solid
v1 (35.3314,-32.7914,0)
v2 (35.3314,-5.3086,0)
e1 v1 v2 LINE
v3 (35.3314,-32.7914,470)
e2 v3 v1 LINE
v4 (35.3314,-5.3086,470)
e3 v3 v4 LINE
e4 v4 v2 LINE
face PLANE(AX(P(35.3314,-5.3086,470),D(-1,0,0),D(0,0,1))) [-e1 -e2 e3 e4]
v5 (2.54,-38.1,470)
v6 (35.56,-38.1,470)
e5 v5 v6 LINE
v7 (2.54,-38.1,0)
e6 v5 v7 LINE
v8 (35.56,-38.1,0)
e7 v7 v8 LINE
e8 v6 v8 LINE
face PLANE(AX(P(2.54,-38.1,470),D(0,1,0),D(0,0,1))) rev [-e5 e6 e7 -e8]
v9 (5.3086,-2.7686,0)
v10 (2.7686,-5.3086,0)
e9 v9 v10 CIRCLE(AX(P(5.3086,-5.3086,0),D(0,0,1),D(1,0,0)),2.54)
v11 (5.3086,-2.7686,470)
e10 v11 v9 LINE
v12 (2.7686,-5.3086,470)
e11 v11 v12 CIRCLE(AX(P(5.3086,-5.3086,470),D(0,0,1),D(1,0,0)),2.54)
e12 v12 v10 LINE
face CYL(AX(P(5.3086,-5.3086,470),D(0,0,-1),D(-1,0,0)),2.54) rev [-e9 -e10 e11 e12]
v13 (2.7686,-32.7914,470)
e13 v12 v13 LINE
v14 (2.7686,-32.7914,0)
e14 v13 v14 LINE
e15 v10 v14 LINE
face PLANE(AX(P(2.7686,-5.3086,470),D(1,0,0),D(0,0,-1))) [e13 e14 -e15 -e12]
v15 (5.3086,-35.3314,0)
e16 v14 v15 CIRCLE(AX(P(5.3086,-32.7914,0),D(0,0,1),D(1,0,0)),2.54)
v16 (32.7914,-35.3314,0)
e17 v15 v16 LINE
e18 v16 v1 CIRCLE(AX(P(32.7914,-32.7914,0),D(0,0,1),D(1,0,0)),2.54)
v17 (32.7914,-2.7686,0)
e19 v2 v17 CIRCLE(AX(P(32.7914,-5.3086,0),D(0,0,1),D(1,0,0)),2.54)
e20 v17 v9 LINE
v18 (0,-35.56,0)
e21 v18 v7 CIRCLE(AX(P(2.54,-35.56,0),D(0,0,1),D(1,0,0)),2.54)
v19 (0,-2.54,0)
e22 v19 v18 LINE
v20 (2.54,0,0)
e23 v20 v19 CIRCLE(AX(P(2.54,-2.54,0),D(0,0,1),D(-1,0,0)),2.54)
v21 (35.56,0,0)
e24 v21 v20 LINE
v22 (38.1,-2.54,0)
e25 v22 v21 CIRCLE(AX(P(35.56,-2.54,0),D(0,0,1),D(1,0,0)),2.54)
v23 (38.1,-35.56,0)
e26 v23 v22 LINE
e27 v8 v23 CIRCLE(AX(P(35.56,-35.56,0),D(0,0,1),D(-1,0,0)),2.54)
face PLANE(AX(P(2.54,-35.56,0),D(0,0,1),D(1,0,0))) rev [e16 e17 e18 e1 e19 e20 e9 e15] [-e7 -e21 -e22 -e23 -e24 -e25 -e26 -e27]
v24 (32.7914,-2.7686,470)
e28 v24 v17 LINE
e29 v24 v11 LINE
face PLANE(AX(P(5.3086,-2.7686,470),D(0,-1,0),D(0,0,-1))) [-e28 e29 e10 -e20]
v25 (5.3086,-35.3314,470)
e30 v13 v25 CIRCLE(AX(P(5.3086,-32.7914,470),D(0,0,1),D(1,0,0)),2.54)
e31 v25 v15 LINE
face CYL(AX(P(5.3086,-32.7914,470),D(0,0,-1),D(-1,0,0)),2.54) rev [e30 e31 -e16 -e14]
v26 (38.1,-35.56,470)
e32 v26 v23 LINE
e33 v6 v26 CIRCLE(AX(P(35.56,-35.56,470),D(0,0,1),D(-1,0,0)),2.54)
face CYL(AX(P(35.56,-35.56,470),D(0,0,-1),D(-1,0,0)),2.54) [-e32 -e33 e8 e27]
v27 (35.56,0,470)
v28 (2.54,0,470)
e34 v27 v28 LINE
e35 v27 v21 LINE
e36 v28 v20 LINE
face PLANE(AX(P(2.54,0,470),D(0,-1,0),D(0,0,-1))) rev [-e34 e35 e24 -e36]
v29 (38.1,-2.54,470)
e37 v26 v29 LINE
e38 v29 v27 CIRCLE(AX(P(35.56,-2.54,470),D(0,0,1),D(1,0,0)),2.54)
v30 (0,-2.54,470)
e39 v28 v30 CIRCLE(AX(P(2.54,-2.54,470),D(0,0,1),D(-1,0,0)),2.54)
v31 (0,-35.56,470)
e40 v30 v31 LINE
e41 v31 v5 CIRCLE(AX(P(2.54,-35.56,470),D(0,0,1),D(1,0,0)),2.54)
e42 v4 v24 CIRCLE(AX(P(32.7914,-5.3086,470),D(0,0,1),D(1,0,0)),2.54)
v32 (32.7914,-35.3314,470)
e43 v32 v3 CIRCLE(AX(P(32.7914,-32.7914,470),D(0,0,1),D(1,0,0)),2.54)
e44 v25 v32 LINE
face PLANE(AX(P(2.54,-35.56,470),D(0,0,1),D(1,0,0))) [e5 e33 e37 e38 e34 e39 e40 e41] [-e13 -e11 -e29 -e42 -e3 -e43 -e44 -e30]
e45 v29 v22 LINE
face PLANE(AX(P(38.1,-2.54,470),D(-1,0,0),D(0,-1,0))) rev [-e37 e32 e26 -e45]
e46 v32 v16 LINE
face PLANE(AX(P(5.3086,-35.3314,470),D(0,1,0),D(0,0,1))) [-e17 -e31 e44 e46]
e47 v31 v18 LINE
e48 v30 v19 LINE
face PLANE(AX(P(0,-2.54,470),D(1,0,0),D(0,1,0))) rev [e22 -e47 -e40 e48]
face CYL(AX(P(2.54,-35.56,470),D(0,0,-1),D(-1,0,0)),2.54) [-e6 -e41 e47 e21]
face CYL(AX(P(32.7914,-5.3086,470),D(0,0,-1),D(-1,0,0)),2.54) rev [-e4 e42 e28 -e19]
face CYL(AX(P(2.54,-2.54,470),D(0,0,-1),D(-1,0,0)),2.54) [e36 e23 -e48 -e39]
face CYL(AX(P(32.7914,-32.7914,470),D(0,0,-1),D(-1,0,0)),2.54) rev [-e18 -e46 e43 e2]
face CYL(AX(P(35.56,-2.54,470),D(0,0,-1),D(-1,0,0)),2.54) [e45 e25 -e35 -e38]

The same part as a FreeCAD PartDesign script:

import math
import FreeCAD as App
import Part
import Sketcher

V = App.Vector
Q = App.Units.Quantity

doc = App.newDocument("Part")
body = doc.addObject("PartDesign::Body", "Body")

# Sketch on XY plane
sketch1 = body.newObject("Sketcher::SketchObject", "Sketch")
sketch1.AttachmentSupport = (doc.getObject("XY_Plane"), [""])
sketch1.MapMode = "FlatFace"
sketch1.addGeometry([
    Part.LineSegment(V(35.6, 0, 0), V(2.5, 0, 0)),  # 0
    Part.ArcOfCircle(Part.Circle(V(2.5, -2.5, 0), V(0, 0, 1), 2.5), math.radians(90), math.radians(180)),  # 1
    Part.LineSegment(V(0, -2.5, 0), V(0, -35.6, 0)),  # 2
    Part.ArcOfCircle(Part.Circle(V(2.5, -35.6, 0), V(0, 0, 1), 2.5), math.radians(-180), math.radians(-90)),  # 3
    Part.LineSegment(V(2.5, -38.1, 0), V(35.6, -38.1, 0)),  # 4
    Part.ArcOfCircle(Part.Circle(V(35.6, -35.6, 0), V(0, 0, 1), 2.5), math.radians(-90), math.radians(0)),  # 5
    Part.LineSegment(V(38.1, -35.6, 0), V(38.1, -2.5, 0)),  # 6
    Part.ArcOfCircle(Part.Circle(V(35.6, -2.5, 0), V(0, 0, 1), 2.5), math.radians(0), math.radians(90)),  # 7
    Part.LineSegment(V(5.3, -2.8, 0), V(32.8, -2.8, 0)),  # 8
    Part.ArcOfCircle(Part.Circle(V(32.8, -5.3, 0), V(0, 0, 1), 2.5), math.radians(0), math.radians(90)),  # 9
    Part.LineSegment(V(35.3, -5.3, 0), V(35.3, -32.8, 0)),  # 10
    Part.ArcOfCircle(Part.Circle(V(32.8, -32.8, 0), V(0, 0, 1), 2.5), math.radians(-90), math.radians(0)),  # 11
    Part.LineSegment(V(32.8, -35.3, 0), V(5.3, -35.3, 0)),  # 12
    Part.ArcOfCircle(Part.Circle(V(5.3, -32.8, 0), V(0, 0, 1), 2.5), math.radians(-180), math.radians(-90)),  # 13
    Part.LineSegment(V(2.8, -32.8, 0), V(2.8, -5.3, 0)),  # 14
    Part.ArcOfCircle(Part.Circle(V(5.3, -5.3, 0), V(0, 0, 1), 2.5), math.radians(90), math.radians(180)),  # 15
], False)
sketch1.addConstraint([
    Sketcher.Constraint("Tangent", 0, 2, 1, 1),
    Sketcher.Constraint("Tangent", 1, 2, 2, 1),
    Sketcher.Constraint("Tangent", 2, 2, 3, 1),
    Sketcher.Constraint("Tangent", 3, 2, 4, 1),
    Sketcher.Constraint("Tangent", 4, 2, 5, 1),
    Sketcher.Constraint("Tangent", 5, 2, 6, 1),
    Sketcher.Constraint("Tangent", 6, 2, 7, 1),
    Sketcher.Constraint("Tangent", 7, 2, 0, 1),
    Sketcher.Constraint("Tangent", 8, 2, 9, 2),
    Sketcher.Constraint("Tangent", 9, 1, 10, 1),
    Sketcher.Constraint("Tangent", 10, 2, 11, 2),
    Sketcher.Constraint("Tangent", 11, 1, 12, 1),
    Sketcher.Constraint("Tangent", 12, 2, 13, 2),
    Sketcher.Constraint("Tangent", 13, 1, 14, 1),
    Sketcher.Constraint("Tangent", 14, 2, 15, 2),
    Sketcher.Constraint("Tangent", 15, 1, 8, 1),
    Sketcher.Constraint("Horizontal", 0),
    Sketcher.Constraint("Vertical", 2),
    Sketcher.Constraint("Horizontal", 4),
    Sketcher.Constraint("Vertical", 6),
    Sketcher.Constraint("Horizontal", 8),
    Sketcher.Constraint("Vertical", 10),
    Sketcher.Constraint("Horizontal", 12),
    Sketcher.Constraint("Vertical", 14),
    Sketcher.Constraint("Equal", 1, 3),
    Sketcher.Constraint("Equal", 3, 5),
    Sketcher.Constraint("Equal", 5, 7),
    Sketcher.Constraint("Equal", 7, 9),
    Sketcher.Constraint("Equal", 9, 11),
    Sketcher.Constraint("Equal", 11, 13),
    Sketcher.Constraint("Equal", 13, 15),
    Sketcher.Constraint("PointOnObject", 0, 2, -1),
    Sketcher.Constraint("PointOnObject", 1, 2, -2),
    Sketcher.Constraint("Equal", 4, 2),
    Sketcher.Constraint("Equal", 12, 10),
    Sketcher.Constraint("Radius", 1, Q("0.1 in")),
    Sketcher.Constraint("DistanceX", 0, 2, 0, 1, Q("1.3 in")),
    Sketcher.Constraint("DistanceX", 8, 1, 8, 2, Q("1.082 in")),
    Sketcher.Constraint("DistanceX", -1, 1, 9, 3, Q("1.291 in")),
    Sketcher.Constraint("DistanceY", 9, 3, -1, 1, Q("0.209 in")),
])
pad1 = body.newObject("PartDesign::Pad", "Pad")
pad1.Profile = sketch1
pad1.Length = 470

doc.recompute()
